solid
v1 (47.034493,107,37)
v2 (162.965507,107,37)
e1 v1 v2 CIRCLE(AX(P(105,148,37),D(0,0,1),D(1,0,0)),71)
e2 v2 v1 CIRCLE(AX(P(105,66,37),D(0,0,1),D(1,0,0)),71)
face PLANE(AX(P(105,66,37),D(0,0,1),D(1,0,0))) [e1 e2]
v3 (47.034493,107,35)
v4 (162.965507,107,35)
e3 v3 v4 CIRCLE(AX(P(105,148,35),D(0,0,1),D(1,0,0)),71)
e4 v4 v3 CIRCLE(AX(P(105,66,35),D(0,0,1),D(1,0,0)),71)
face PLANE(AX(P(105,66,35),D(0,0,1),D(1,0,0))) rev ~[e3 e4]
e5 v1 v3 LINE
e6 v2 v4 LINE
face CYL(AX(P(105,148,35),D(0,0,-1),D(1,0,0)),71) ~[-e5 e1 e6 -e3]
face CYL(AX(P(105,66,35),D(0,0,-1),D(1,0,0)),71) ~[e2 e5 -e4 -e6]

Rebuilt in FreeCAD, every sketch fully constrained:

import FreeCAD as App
import Part
import Sketcher

doc = App.newDocument("Part")
params = doc.addObject("Spreadsheet::Sheet", "Params")
for row, (alias, value) in enumerate([
    ("sketch1_diameter", "142 mm"),
    ("pad1_length", "2 mm"),
    ("sketch2_diameter", "142 mm"),
    ("pad2_length", "2 mm"),
], start=1):
    params.set(f"A{row}", alias)
    params.set(f"B{row}", "=" + value)
    params.setAlias(f"B{row}", alias)

body = doc.addObject("PartDesign::Body", "Body")

# Sketch on XY plane
sketch1 = body.newObject("Sketcher::SketchObject", "Sketch")
sketch1.AttachmentSupport = (doc.getObject("XY_Plane"), [""])
sketch1.MapMode = "FlatFace"
sketch1.AttachmentOffset = App.Placement(App.Vector(0, 0, 35), App.Rotation())
sketch1.addGeometry(Part.Circle(App.Vector(105, 148, 0), App.Vector(0, 0, 1), 71), False)
sketch1.addConstraint([
    Sketcher.Constraint("Diameter", 0, 142.0),
    Sketcher.Constraint("DistanceX", -1, 1, 0, 3, 105.0),
    Sketcher.Constraint("DistanceY", -1, 1, 0, 3, 148.0),
])
sketch1.setExpression("Constraints[0]", "Params.sketch1_diameter")
pad1 = body.newObject("PartDesign::Pad", "Pad")
pad1.Profile = sketch1
pad1.setExpression("Length", "Params.pad1_length")
body2 = doc.addObject("PartDesign::Body", "Body001")

# Sketch on XY plane
sketch2 = body2.newObject("Sketcher::SketchObject", "Sketch001")
sketch2.AttachmentSupport = (doc.getObject("XY_Plane001"), [""])
sketch2.MapMode = "FlatFace"
sketch2.AttachmentOffset = App.Placement(App.Vector(0, 0, 35), App.Rotation())
sketch2.addGeometry(Part.Circle(App.Vector(105, 66, 0), App.Vector(0, 0, 1), 71), False)
sketch2.addConstraint([
    Sketcher.Constraint("Diameter", 0, 142.0),
    Sketcher.Constraint("DistanceX", -1, 1, 0, 3, 105.0),
    Sketcher.Constraint("DistanceY", -1, 1, 0, 3, 66.0),
])
sketch2.setExpression("Constraints[0]", "Params.sketch2_diameter")
pad2 = body2.newObject("PartDesign::Pad", "Pad001")
pad2.Profile = sketch2
pad2.setExpression("Length", "Params.pad2_length")
doc.recompute()

boolean = body2.newObject("PartDesign::Boolean", "Boolean")
boolean.Type = "Common"
boolean.addObjects([body])

doc.recompute()
